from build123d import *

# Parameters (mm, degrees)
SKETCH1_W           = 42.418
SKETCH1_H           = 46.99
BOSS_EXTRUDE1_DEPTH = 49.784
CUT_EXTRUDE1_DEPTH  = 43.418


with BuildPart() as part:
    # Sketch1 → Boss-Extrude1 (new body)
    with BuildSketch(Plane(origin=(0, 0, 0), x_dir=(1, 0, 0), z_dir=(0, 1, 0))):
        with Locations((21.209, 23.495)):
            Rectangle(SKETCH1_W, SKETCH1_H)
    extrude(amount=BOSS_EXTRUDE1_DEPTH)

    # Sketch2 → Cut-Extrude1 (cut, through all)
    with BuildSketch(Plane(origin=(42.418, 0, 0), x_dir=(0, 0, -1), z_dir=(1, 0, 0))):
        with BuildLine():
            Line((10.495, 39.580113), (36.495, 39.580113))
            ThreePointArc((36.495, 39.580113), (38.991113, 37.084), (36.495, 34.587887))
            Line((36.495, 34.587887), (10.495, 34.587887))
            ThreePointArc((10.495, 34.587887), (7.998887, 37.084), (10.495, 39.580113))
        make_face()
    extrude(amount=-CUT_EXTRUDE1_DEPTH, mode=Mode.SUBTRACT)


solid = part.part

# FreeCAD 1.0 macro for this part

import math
import FreeCAD as App
import Part
import Sketcher
Q = App.Units.Quantity

doc = App.newDocument("Part")
body = doc.addObject("PartDesign::Body", "Body")

# Sketch on XZ plane
sketch1 = body.newObject("Sketcher::SketchObject", "Sketch")
sketch1.AttachmentSupport = (doc.getObject("XZ_Plane"), [""])
sketch1.MapMode = "FlatFace"
sketch1.addGeometry([
    Part.LineSegment(App.Vector(0, -47, 0), App.Vector(0, 0, 0)),
    Part.LineSegment(App.Vector(0, 0, 0), App.Vector(42, 0, 0)),
    Part.LineSegment(App.Vector(42, 0, 0), App.Vector(42, -47, 0)),
    Part.LineSegment(App.Vector(42, -47, 0), App.Vector(0, -47, 0)),
], False)
sketch1.addConstraint([
    Sketcher.Constraint("Coincident", 0, 2, 1, 1),
    Sketcher.Constraint("Coincident", 1, 2, 2, 1),
    Sketcher.Constraint("Coincident", 2, 2, 3, 1),
    Sketcher.Constraint("Coincident", 3, 2, 0, 1),
    Sketcher.Constraint("Vertical", 0),
    Sketcher.Constraint("Horizontal", 1),
    Sketcher.Constraint("Vertical", 2),
    Sketcher.Constraint("Horizontal", 3),
    Sketcher.Constraint("Coincident", 0, 2, -1, 1),
    Sketcher.Constraint("DistanceX", 1, 1, 1, 2, Q("1.67 in")),
    Sketcher.Constraint("DistanceY", 0, 1, 0, 2, Q("1.85 in")),
])
pad1 = body.newObject("PartDesign::Pad", "Pad")
pad1.Profile = sketch1
pad1.Length = Q("1.96 in")
pad1.Reversed = True

# Sketch on YZ plane
sketch2 = body.newObject("Sketcher::SketchObject", "Sketch001")
sketch2.AttachmentSupport = (doc.getObject("YZ_Plane"), [""])
sketch2.MapMode = "FlatFace"
sketch2.AttachmentOffset = App.Placement(App.Vector(0, 0, 1.67 * 25.4), App.Rotation())
sketch2.addGeometry([
    Part.LineSegment(App.Vector(39.6, -36.5, 0), App.Vector(39.6, -10.5, 0)),
    Part.ArcOfCircle(Part.Circle(App.Vector(37.1, -10.5, 0), App.Vector(0, 0, 1), 2.5), math.radians(0), math.radians(180)),
    Part.LineSegment(App.Vector(34.6, -10.5, 0), App.Vector(34.6, -36.5, 0)),
    Part.ArcOfCircle(Part.Circle(App.Vector(37.1, -36.5, 0), App.Vector(0, 0, 1), 2.5), math.radians(180), math.radians(360)),
], False)
sketch2.addConstraint([
    Sketcher.Constraint("Tangent", 0, 2, 1, 1),
    Sketcher.Constraint("Tangent", 1, 2, 2, 1),
    Sketcher.Constraint("Tangent", 2, 2, 3, 1),
    Sketcher.Constraint("Tangent", 3, 2, 0, 1),
    Sketcher.Constraint("Vertical", 0),
    Sketcher.Constraint("Vertical", 2),
    Sketcher.Constraint("DistanceX", -1, 1, 1, 3, Q("1.46 in")),
    Sketcher.Constraint("DistanceY", 0, 1, 0, 2, Q("26 mm")),
    Sketcher.Constraint("Radius", 1, Q("2.496113 mm")),
    Sketcher.Constraint("DistanceY", 1, 3, -1, 1, Q("10.495 mm")),
])
pocket1 = body.newObject("PartDesign::Pocket", "Pocket")
pocket1.Profile = sketch2
pocket1.Type = "ThroughAll"

doc.recompute()
